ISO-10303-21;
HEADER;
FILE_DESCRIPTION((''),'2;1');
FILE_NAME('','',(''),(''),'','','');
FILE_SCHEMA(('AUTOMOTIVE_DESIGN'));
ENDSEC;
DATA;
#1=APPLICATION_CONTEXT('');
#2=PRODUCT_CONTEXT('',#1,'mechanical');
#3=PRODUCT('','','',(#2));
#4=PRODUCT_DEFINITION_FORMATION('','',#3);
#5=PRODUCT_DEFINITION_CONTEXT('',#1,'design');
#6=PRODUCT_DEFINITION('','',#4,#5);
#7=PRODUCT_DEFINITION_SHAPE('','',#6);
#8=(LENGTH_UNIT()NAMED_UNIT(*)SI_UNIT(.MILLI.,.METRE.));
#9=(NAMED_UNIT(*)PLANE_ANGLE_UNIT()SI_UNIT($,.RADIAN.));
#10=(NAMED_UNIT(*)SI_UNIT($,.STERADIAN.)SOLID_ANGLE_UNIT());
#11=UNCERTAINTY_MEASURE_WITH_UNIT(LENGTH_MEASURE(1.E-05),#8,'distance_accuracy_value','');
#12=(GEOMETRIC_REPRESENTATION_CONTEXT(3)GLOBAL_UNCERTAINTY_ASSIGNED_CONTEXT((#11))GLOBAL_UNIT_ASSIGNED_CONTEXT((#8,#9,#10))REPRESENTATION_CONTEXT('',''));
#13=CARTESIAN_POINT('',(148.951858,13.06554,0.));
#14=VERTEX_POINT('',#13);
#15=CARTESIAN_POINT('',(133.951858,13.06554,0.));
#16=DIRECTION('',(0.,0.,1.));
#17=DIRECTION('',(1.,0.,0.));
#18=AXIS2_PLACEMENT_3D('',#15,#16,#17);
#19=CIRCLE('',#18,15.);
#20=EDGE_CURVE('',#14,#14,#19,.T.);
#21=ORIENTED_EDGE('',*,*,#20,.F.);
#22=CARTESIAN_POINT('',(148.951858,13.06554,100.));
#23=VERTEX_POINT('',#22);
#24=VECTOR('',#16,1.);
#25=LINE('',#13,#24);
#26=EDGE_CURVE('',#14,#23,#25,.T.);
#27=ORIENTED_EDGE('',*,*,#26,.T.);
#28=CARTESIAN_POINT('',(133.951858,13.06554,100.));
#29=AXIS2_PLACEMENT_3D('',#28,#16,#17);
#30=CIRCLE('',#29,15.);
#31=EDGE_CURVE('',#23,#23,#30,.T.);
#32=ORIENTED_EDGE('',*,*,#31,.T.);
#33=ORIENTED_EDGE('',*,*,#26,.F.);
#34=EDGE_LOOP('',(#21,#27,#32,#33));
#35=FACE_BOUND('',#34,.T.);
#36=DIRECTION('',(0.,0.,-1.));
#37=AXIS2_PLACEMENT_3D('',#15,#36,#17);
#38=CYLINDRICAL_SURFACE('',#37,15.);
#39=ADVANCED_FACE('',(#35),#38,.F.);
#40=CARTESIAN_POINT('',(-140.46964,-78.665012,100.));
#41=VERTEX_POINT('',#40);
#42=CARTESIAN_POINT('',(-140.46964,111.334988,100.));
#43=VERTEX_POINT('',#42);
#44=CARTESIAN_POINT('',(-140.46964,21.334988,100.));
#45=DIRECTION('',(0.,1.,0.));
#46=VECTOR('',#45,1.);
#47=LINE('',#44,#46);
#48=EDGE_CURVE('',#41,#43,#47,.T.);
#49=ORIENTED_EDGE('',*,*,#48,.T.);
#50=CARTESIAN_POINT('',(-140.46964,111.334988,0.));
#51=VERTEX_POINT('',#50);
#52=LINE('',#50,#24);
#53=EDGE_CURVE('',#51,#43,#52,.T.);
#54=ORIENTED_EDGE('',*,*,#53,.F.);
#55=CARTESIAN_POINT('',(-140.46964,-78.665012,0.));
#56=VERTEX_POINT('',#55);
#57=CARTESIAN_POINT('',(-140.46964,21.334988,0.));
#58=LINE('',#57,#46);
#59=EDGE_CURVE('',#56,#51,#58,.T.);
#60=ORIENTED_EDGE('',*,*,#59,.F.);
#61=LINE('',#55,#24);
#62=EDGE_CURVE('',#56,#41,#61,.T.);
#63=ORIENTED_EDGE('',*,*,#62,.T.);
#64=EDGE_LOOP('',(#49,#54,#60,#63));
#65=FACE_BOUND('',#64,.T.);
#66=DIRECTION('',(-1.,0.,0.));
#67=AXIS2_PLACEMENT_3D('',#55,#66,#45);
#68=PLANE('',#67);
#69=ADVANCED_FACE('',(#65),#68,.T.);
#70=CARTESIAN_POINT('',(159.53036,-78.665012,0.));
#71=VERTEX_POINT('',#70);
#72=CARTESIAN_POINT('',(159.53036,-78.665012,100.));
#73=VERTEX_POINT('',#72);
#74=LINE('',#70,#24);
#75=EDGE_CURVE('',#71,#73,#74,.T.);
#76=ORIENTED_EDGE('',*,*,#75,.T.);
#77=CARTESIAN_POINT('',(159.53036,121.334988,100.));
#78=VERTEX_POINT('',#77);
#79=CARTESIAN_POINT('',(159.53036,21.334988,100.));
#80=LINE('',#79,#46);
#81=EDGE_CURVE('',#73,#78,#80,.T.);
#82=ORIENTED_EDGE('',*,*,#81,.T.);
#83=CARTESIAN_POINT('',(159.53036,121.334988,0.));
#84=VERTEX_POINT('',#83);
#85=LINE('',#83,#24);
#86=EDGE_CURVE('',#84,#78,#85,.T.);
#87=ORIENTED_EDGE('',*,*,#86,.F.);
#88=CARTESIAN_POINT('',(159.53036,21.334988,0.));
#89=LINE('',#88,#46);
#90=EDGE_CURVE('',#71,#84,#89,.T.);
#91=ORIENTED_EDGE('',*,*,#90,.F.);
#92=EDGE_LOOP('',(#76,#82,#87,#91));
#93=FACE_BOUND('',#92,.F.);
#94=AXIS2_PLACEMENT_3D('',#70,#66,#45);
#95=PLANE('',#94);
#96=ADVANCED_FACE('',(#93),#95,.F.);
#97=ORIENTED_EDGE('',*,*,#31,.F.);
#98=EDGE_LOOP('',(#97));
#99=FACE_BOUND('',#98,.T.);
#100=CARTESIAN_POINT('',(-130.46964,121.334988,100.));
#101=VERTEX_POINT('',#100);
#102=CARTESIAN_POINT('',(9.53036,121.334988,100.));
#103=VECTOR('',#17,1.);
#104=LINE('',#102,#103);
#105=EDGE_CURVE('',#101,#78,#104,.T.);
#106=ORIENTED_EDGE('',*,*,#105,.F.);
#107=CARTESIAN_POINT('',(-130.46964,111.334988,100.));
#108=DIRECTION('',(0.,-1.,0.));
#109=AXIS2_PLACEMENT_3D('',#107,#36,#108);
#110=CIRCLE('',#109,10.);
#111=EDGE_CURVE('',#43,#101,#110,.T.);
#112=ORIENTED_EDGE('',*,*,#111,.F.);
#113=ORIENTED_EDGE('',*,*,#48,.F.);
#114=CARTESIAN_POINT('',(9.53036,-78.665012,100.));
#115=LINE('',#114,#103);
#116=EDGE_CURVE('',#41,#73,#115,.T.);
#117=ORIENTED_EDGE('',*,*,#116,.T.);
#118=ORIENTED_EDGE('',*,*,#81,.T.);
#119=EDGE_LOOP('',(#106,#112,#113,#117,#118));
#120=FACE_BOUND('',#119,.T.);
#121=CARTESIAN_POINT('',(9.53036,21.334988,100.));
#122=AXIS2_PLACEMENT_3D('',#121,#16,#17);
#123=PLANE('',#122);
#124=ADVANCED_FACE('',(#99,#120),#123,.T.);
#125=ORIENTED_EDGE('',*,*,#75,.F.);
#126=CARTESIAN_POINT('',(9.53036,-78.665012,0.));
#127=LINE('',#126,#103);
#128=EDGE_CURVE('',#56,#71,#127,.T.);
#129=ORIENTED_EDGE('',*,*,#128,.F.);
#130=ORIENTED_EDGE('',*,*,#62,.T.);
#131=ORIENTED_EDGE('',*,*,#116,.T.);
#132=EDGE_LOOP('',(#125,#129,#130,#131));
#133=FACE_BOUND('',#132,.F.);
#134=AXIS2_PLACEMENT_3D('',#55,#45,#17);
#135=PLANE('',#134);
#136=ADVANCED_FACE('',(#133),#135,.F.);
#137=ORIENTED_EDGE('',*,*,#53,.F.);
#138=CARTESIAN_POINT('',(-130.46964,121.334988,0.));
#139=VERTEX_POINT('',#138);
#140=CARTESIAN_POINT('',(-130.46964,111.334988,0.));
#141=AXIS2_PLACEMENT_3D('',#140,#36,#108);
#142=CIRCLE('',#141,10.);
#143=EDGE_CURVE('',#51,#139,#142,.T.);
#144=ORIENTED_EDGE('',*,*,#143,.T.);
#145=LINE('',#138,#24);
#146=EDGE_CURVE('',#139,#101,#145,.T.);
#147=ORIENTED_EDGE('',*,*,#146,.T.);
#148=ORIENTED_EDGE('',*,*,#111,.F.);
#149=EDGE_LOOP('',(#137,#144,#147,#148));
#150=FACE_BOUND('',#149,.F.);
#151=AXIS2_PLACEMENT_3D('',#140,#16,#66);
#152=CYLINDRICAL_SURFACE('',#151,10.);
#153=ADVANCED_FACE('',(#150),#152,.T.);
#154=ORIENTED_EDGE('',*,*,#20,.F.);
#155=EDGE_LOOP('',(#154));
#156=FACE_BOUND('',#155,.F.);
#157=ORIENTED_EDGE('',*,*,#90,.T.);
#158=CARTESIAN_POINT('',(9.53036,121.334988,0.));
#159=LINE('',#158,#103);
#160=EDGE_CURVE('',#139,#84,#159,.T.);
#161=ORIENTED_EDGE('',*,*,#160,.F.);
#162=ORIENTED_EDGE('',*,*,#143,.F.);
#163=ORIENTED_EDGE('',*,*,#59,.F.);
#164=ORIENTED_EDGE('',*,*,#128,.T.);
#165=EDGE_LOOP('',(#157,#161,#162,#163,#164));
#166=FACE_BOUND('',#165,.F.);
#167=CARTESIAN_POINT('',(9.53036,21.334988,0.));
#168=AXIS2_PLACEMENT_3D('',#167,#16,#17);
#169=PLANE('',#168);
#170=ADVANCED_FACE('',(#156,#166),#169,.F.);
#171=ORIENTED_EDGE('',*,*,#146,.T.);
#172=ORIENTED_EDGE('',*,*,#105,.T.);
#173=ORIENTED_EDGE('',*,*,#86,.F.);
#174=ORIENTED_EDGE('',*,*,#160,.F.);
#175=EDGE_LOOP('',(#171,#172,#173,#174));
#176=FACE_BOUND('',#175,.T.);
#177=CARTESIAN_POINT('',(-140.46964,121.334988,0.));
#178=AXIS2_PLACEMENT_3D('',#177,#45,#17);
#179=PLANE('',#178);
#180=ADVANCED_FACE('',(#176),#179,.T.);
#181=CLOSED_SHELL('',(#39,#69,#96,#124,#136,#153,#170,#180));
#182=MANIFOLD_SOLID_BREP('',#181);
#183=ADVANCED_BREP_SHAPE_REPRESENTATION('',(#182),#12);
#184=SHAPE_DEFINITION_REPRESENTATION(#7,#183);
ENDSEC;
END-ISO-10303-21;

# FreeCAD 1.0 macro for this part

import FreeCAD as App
import Part
import Sketcher
from FreeCAD import Vector


def edges_at(feature, points):
    """Names of the edges that pass closest to the given points."""
    edges = feature.Shape.Edges
    near = lambda p: min(range(len(edges)), key=lambda i: edges[i].distToShape(Part.Vertex(*p))[0])
    return sorted({f"Edge{near(p) + 1}" for p in points})


def add_polygon(sketch, points):
    """Adds a closed chain of lines whose ends are joined by coincident constraints."""
    first, n = sketch.GeometryCount, len(points)
    for a, b in zip(points, points[1:] + points[:1]):
        sketch.addGeometry(Part.LineSegment(App.Vector(*a, 0), App.Vector(*b, 0)), False)
    for i in range(n):
        sketch.addConstraint(Sketcher.Constraint("Coincident", first + i, 2, first + (i + 1) % n, 1))

doc = App.newDocument("Part")
body = doc.addObject("PartDesign::Body", "Body")

sketch1 = body.newObject("Sketcher::SketchObject", "Sketch")
sketch1.AttachmentSupport = (doc.getObject("XY_Plane"), [""])
sketch1.MapMode = "FlatFace"
add_polygon(sketch1, [(-140.46964, 121.334988), (-140.46964, -78.665012), (159.53036, -78.665012), (159.53036, 121.334988)])
sketch1.addGeometry(Part.Circle(Vector(133.951858, 13.06554, 0), Vector(0, 0, 1), 15), False)
sketch1.addConstraint(Sketcher.Constraint("Vertical", 0))
sketch1.addConstraint(Sketcher.Constraint("Horizontal", 1))
sketch1.addConstraint(Sketcher.Constraint("Vertical", 2))
sketch1.addConstraint(Sketcher.Constraint("Horizontal", 3))
sketch1.addConstraint(Sketcher.Constraint("Diameter", 4, 30.0))
sketch1.addConstraint(Sketcher.Constraint("DistanceX", 1, 1, 1, 2, 300.0))
sketch1.addConstraint(Sketcher.Constraint("DistanceY", 0, 2, 0, 1, 200.0))
sketch1.addConstraint(Sketcher.Constraint("DistanceX", 0, 2, 4, 3, 274.421498))
sketch1.addConstraint(Sketcher.Constraint("DistanceY", -1, 1, 4, 3, 13.06554))
sketch1.addConstraint(Sketcher.Constraint("DistanceX", 0, 2, -1, 1, 140.46964))
sketch1.addConstraint(Sketcher.Constraint("DistanceY", 0, 2, -1, 1, 78.665012))
pad1 = body.newObject("PartDesign::Pad", "Pad")
pad1.Profile = sketch1
pad1.Length = 100
doc.recompute()

fillet = body.newObject("PartDesign::Fillet", "Fillet")
fillet.Base = (pad1, edges_at(pad1, [(-140.47, 121.335, 50)]))
fillet.Radius = 10

doc.recompute()
